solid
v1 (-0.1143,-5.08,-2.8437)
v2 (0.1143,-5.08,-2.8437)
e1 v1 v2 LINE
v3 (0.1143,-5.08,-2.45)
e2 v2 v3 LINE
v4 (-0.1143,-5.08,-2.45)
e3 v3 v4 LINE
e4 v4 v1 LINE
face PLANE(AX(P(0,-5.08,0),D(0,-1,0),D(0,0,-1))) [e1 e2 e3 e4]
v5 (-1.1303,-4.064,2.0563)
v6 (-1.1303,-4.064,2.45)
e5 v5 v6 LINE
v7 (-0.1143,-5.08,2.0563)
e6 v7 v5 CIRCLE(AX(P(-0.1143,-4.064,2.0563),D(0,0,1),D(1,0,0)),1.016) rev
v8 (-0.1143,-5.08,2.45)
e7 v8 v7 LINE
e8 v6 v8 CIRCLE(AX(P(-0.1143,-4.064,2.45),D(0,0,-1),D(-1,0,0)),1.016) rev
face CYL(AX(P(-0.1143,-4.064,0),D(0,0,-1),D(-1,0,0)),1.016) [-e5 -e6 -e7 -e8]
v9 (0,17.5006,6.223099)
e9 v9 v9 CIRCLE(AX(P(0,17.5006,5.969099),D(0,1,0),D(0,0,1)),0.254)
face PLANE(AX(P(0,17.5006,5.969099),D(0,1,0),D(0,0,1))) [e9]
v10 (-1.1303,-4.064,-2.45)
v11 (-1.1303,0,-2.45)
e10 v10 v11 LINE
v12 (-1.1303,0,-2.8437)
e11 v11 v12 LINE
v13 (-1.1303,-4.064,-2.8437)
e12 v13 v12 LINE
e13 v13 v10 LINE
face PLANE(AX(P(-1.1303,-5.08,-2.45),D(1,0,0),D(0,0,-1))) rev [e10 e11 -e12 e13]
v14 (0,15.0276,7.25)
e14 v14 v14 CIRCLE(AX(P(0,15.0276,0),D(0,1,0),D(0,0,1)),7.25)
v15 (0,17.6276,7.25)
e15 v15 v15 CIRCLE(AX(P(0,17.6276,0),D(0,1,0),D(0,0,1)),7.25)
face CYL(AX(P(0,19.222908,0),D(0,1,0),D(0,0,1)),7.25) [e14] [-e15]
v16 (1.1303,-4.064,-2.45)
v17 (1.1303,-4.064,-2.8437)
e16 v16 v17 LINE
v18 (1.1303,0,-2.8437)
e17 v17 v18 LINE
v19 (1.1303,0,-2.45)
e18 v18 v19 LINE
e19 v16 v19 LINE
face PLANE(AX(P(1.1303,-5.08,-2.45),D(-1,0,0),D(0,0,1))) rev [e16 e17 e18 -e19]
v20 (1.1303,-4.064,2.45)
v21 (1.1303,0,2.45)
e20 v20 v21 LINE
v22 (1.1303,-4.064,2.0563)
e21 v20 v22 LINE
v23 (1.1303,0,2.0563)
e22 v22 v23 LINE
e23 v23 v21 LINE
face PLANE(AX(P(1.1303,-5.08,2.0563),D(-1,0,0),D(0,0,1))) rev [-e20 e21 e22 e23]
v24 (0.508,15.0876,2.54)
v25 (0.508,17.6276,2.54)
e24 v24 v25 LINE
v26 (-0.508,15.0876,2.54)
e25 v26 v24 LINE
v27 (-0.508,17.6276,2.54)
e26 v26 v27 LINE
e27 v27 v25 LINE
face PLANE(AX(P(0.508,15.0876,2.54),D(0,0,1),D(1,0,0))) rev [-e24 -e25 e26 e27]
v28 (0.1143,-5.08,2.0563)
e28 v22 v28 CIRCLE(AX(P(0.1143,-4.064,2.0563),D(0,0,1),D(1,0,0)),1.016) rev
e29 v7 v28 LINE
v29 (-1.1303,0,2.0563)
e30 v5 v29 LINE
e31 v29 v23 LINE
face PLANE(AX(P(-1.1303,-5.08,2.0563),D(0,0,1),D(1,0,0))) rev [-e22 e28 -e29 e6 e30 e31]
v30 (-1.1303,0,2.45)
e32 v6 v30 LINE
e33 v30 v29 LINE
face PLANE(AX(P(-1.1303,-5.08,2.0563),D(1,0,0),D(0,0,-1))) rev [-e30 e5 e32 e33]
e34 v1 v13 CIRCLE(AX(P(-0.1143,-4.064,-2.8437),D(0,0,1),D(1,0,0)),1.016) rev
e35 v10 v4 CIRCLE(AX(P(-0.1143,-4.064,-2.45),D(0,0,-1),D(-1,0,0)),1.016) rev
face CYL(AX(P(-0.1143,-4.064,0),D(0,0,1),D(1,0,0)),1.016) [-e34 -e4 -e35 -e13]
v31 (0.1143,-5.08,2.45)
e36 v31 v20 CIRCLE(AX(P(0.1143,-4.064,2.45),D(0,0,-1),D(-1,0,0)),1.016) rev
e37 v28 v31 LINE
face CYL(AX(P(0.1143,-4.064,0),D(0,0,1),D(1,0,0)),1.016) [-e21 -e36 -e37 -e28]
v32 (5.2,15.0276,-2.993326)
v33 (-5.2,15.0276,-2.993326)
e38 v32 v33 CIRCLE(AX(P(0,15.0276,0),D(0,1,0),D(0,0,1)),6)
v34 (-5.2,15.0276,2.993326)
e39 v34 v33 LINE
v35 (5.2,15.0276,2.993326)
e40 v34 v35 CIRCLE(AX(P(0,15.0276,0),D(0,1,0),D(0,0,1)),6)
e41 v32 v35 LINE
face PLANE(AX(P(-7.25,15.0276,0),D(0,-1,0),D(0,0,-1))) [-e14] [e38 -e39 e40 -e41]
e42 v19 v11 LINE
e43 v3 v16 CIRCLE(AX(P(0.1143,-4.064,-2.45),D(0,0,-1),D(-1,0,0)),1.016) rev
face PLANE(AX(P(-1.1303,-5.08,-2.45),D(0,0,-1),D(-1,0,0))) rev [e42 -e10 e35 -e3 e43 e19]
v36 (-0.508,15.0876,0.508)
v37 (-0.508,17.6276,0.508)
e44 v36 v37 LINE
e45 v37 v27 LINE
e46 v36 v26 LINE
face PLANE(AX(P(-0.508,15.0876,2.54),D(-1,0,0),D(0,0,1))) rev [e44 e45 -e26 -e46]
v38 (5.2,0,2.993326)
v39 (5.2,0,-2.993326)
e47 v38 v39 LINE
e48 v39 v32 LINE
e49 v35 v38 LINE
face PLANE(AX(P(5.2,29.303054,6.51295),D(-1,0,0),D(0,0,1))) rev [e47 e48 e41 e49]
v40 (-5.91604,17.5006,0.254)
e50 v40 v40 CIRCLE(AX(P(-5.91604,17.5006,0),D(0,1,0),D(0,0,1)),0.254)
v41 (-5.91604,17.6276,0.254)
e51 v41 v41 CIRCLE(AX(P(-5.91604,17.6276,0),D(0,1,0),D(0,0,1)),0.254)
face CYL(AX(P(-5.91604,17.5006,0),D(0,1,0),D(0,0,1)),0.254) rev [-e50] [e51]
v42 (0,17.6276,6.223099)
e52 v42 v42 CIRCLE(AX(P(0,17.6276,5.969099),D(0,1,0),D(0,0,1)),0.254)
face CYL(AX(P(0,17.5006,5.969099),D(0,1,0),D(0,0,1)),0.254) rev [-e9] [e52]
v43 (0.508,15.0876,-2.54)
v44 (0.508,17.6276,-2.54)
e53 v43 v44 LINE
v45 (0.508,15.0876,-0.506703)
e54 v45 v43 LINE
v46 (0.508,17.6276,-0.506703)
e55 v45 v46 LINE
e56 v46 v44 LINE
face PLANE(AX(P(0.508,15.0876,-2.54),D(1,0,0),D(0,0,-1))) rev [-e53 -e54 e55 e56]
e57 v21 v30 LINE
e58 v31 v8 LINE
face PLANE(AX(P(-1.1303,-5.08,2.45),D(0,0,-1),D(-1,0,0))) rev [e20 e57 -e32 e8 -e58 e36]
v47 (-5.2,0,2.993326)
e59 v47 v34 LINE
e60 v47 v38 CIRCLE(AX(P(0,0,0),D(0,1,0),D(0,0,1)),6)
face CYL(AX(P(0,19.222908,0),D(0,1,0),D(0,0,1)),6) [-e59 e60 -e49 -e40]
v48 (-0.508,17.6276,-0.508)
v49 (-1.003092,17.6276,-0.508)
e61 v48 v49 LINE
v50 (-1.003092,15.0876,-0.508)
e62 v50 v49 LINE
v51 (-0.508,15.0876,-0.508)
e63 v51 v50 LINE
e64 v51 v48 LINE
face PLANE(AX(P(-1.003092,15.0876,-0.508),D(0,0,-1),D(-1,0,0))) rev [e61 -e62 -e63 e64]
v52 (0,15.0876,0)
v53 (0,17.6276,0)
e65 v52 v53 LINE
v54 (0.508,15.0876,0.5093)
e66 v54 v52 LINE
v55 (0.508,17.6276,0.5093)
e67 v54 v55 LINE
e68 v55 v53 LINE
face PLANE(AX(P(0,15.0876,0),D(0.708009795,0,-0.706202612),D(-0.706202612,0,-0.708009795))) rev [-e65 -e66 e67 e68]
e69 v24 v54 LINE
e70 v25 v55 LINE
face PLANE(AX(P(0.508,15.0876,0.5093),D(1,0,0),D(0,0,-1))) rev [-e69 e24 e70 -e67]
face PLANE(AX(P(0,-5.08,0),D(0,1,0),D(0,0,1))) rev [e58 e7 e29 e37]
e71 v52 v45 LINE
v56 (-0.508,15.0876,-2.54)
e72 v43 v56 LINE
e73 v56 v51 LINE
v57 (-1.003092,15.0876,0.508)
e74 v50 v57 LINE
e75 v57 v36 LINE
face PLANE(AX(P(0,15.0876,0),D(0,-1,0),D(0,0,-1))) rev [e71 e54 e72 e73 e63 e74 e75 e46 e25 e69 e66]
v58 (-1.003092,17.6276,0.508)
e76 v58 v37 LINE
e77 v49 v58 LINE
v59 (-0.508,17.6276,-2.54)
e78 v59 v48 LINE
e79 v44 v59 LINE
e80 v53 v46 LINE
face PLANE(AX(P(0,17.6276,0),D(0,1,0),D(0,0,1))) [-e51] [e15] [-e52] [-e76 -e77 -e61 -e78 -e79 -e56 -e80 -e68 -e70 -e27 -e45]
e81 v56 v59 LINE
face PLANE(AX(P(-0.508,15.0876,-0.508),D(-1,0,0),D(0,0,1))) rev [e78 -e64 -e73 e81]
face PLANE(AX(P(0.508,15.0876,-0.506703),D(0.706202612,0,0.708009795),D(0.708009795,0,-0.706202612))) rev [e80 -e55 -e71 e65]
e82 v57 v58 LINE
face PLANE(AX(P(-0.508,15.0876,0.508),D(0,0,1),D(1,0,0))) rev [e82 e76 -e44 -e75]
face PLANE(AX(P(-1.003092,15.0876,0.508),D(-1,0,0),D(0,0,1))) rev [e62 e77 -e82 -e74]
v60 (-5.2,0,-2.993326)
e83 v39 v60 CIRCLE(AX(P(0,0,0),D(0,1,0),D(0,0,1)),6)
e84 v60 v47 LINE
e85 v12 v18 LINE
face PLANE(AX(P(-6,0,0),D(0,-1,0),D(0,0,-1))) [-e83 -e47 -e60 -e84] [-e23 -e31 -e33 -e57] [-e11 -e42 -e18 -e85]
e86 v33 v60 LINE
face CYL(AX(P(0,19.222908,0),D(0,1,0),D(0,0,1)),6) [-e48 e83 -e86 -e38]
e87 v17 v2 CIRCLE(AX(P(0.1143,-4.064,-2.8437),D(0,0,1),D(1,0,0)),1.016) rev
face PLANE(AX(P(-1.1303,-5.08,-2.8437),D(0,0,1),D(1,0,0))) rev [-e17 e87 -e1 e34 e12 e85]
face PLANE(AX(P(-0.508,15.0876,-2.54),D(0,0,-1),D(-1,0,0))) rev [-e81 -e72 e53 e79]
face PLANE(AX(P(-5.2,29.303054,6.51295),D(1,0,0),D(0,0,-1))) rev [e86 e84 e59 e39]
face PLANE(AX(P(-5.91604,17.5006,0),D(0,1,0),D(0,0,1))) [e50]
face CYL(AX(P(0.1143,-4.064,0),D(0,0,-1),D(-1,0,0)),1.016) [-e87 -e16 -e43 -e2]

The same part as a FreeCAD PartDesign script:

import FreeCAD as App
import Part
import Sketcher
Q = App.Units.Quantity


def edges_at(feature, points):
    """Names of the edges that pass closest to the given points."""
    edges = feature.Shape.Edges
    near = lambda p: min(range(len(edges)), key=lambda i: edges[i].distToShape(Part.Vertex(*p))[0])
    return sorted({f"Edge{near(p) + 1}" for p in points})

doc = App.newDocument("Part")
body = doc.addObject("PartDesign::Body", "Body")

# Sketch on XY plane
sketch1 = body.newObject("Sketcher::SketchObject", "Sketch")
sketch1.AttachmentSupport = (doc.getObject("XY_Plane"), [""])
sketch1.MapMode = "FlatFace"
sketch1.addGeometry(Part.LineSegment(App.Vector(0, 17.6, 0), App.Vector(-7.2, 17.6, 0)), False)
sketch1.addGeometry(Part.LineSegment(App.Vector(-7.2, 17.6, 0), App.Vector(-7.2, 15, 0)), False)
sketch1.addGeometry(Part.LineSegment(App.Vector(-7.2, 15, 0), App.Vector(-6, 15, 0)), False)
sketch1.addGeometry(Part.LineSegment(App.Vector(-6, 15, 0), App.Vector(-6, 0, 0)), False)
sketch1.addGeometry(Part.LineSegment(App.Vector(-6, 0, 0), App.Vector(0, 0, 0)), False)
sketch1.addGeometry(Part.LineSegment(App.Vector(0, 0, 0), App.Vector(0, 17.6, 0)), False)
sketch1.addConstraint(Sketcher.Constraint("Coincident", 0, 2, 1, 1))
sketch1.addConstraint(Sketcher.Constraint("Coincident", 1, 2, 2, 1))
sketch1.addConstraint(Sketcher.Constraint("Coincident", 2, 2, 3, 1))
sketch1.addConstraint(Sketcher.Constraint("Coincident", 3, 2, 4, 1))
sketch1.addConstraint(Sketcher.Constraint("Coincident", 4, 2, 5, 1))
sketch1.addConstraint(Sketcher.Constraint("Coincident", 5, 2, 0, 1))
sketch1.addConstraint(Sketcher.Constraint("Horizontal", 0))
sketch1.addConstraint(Sketcher.Constraint("Vertical", 1))
sketch1.addConstraint(Sketcher.Constraint("Horizontal", 2))
sketch1.addConstraint(Sketcher.Constraint("Vertical", 3))
sketch1.addConstraint(Sketcher.Constraint("Horizontal", 4))
sketch1.addConstraint(Sketcher.Constraint("Vertical", 5))
sketch1.addConstraint(Sketcher.Constraint("Coincident", 4, 2, -1, 1))
sketch1.addConstraint(Sketcher.Constraint("DistanceY", 5, 1, 5, 2, Q("0.694 in")))
sketch1.addConstraint(Sketcher.Constraint("DistanceX", 0, 2, 0, 1, 7.25))
sketch1.addConstraint(Sketcher.Constraint("DistanceX", 2, 1, 2, 2, 1.25))
sketch1.addConstraint(Sketcher.Constraint("DistanceY", 1, 2, 1, 1, 2.6))
revolution = body.newObject("PartDesign::Revolution", "Revolution")
revolution.Profile = sketch1
revolution.ReferenceAxis = (sketch1, ["V_Axis"])
revolution.Angle = 360

# Sketch on XZ plane
sketch2 = body.newObject("Sketcher::SketchObject", "Sketch001")
sketch2.AttachmentSupport = (doc.getObject("XZ_Plane"), [""])
sketch2.MapMode = "FlatFace"
sketch2.addGeometry(Part.LineSegment(App.Vector(-8.5, 6.5, 0), App.Vector(-8.5, -7.4, 0)), False)
sketch2.addGeometry(Part.LineSegment(App.Vector(-8.5, -7.4, 0), App.Vector(-5.2, -7.4, 0)), False)
sketch2.addGeometry(Part.LineSegment(App.Vector(-5.2, -7.4, 0), App.Vector(-5.2, 6.5, 0)), False)
sketch2.addGeometry(Part.LineSegment(App.Vector(-5.2, 6.5, 0), App.Vector(-8.5, 6.5, 0)), False)
sketch2.addGeometry(Part.LineSegment(App.Vector(5.2, 6.5, 0), App.Vector(5.2, -7.4, 0)), False)
sketch2.addGeometry(Part.LineSegment(App.Vector(5.2, -7.4, 0), App.Vector(8.5, -7.4, 0)), False)
sketch2.addGeometry(Part.LineSegment(App.Vector(8.5, -7.4, 0), App.Vector(8.5, 6.5, 0)), False)
sketch2.addGeometry(Part.LineSegment(App.Vector(8.5, 6.5, 0), App.Vector(5.2, 6.5, 0)), False)
sketch2.addConstraint(Sketcher.Constraint("Coincident", 0, 2, 1, 1))
sketch2.addConstraint(Sketcher.Constraint("Coincident", 1, 2, 2, 1))
sketch2.addConstraint(Sketcher.Constraint("Coincident", 2, 2, 3, 1))
sketch2.addConstraint(Sketcher.Constraint("Coincident", 3, 2, 0, 1))
sketch2.addConstraint(Sketcher.Constraint("Coincident", 4, 2, 5, 1))
sketch2.addConstraint(Sketcher.Constraint("Coincident", 5, 2, 6, 1))
sketch2.addConstraint(Sketcher.Constraint("Coincident", 6, 2, 7, 1))
sketch2.addConstraint(Sketcher.Constraint("Coincident", 7, 2, 4, 1))
sketch2.addConstraint(Sketcher.Constraint("Vertical", 0))
sketch2.addConstraint(Sketcher.Constraint("Horizontal", 1))
sketch2.addConstraint(Sketcher.Constraint("Vertical", 2))
sketch2.addConstraint(Sketcher.Constraint("Horizontal", 3))
sketch2.addConstraint(Sketcher.Constraint("Vertical", 4))
sketch2.addConstraint(Sketcher.Constraint("Horizontal", 5))
sketch2.addConstraint(Sketcher.Constraint("Vertical", 6))
sketch2.addConstraint(Sketcher.Constraint("Horizontal", 7))
sketch2.addConstraint(Sketcher.Constraint("Symmetric", 1, 2, 4, 2, -2))
sketch2.addConstraint(Sketcher.Constraint("Symmetric", 3, 2, 6, 2, -2))
sketch2.addConstraint(Sketcher.Constraint("DistanceX", 1, 1, 1, 2, 3.302901))
sketch2.addConstraint(Sketcher.Constraint("DistanceX", 0, 2, -1, 1, 8.502901))
sketch2.addConstraint(Sketcher.Constraint("DistanceY", 0, 2, 0, 1, 13.888104))
sketch2.addConstraint(Sketcher.Constraint("DistanceY", -1, 1, 2, 2, 6.51295))
pocket1 = body.newObject("PartDesign::Pocket", "Pocket")
pocket1.Profile = sketch2
pocket1.Length = 15.0276

# Sketch on XZ plane
sketch3 = body.newObject("Sketcher::SketchObject", "Sketch002")
sketch3.AttachmentSupport = (doc.getObject("XZ_Plane"), [""])
sketch3.MapMode = "FlatFace"
sketch3.addGeometry(Part.LineSegment(App.Vector(-1.13, 2.45, 0), App.Vector(-1.13, 2.06, 0)), False)
sketch3.addGeometry(Part.LineSegment(App.Vector(-1.13, 2.06, 0), App.Vector(1.13, 2.06, 0)), False)
sketch3.addGeometry(Part.LineSegment(App.Vector(1.13, 2.06, 0), App.Vector(1.13, 2.45, 0)), False)
sketch3.addGeometry(Part.LineSegment(App.Vector(1.13, 2.45, 0), App.Vector(-1.13, 2.45, 0)), False)
sketch3.addGeometry(Part.LineSegment(App.Vector(-1.13, -2.45, 0), App.Vector(-1.13, -2.84, 0)), False)
sketch3.addGeometry(Part.LineSegment(App.Vector(-1.13, -2.84, 0), App.Vector(1.13, -2.84, 0)), False)
sketch3.addGeometry(Part.LineSegment(App.Vector(1.13, -2.84, 0), App.Vector(1.13, -2.45, 0)), False)
sketch3.addGeometry(Part.LineSegment(App.Vector(1.13, -2.45, 0), App.Vector(-1.13, -2.45, 0)), False)
sketch3.addConstraint(Sketcher.Constraint("Coincident", 0, 2, 1, 1))
sketch3.addConstraint(Sketcher.Constraint("Coincident", 1, 2, 2, 1))
sketch3.addConstraint(Sketcher.Constraint("Coincident", 2, 2, 3, 1))
sketch3.addConstraint(Sketcher.Constraint("Coincident", 3, 2, 0, 1))
sketch3.addConstraint(Sketcher.Constraint("Coincident", 4, 2, 5, 1))
sketch3.addConstraint(Sketcher.Constraint("Coincident", 5, 2, 6, 1))
sketch3.addConstraint(Sketcher.Constraint("Coincident", 6, 2, 7, 1))
sketch3.addConstraint(Sketcher.Constraint("Coincident", 7, 2, 4, 1))
sketch3.addConstraint(Sketcher.Constraint("Vertical", 0))
sketch3.addConstraint(Sketcher.Constraint("Horizontal", 1))
sketch3.addConstraint(Sketcher.Constraint("Vertical", 2))
sketch3.addConstraint(Sketcher.Constraint("Horizontal", 3))
sketch3.addConstraint(Sketcher.Constraint("Vertical", 4))
sketch3.addConstraint(Sketcher.Constraint("Horizontal", 5))
sketch3.addConstraint(Sketcher.Constraint("Vertical", 6))
sketch3.addConstraint(Sketcher.Constraint("Horizontal", 7))
sketch3.addConstraint(Sketcher.Constraint("Symmetric", 3, 2, 6, 2, -1, 1))
sketch3.addConstraint(Sketcher.Constraint("Vertical", 3, 2, 4, 2))
sketch3.addConstraint(Sketcher.Constraint("Vertical", 2, 2, 5, 2))
sketch3.addConstraint(Sketcher.Constraint("Equal", 2, 4))
sketch3.addConstraint(Sketcher.Constraint("DistanceX", 1, 1, 1, 2, Q("0.089 in")))
sketch3.addConstraint(Sketcher.Constraint("DistanceY", 0, 2, 0, 1, Q("0.0155 in")))
sketch3.addConstraint(Sketcher.Constraint("DistanceY", -1, 1, 0, 2, 2.0563))
pad1 = body.newObject("PartDesign::Pad", "Pad")
pad1.Profile = sketch3
pad1.Length = Q("0.2 in")
doc.recompute()

fillet = body.newObject("PartDesign::Fillet", "Fillet")
fillet.Base = (pad1, edges_at(pad1, [
    (1.13, -5.08, 2.253),
    (-1.13, -5.08, 2.253),
    (1.13, -5.08, -2.647),
    (-1.13, -5.08, -2.647),
]))
fillet.Radius = Q("0.04 in")

# Sketch on XZ plane
sketch4 = body.newObject("Sketcher::SketchObject", "Sketch003")
sketch4.AttachmentSupport = (doc.getObject("XZ_Plane"), [""])
sketch4.MapMode = "FlatFace"
sketch4.AttachmentOffset = App.Placement(App.Vector(0, 0, -0.694 * 25.4), App.Rotation())
sketch4.addGeometry(Part.LineSegment(App.Vector(0.51, -0.51, 0), App.Vector(0.51, -2.54, 0)), False)
sketch4.addGeometry(Part.LineSegment(App.Vector(0.51, -2.54, 0), App.Vector(-0.51, -2.54, 0)), False)
sketch4.addGeometry(Part.LineSegment(App.Vector(-0.51, -2.54, 0), App.Vector(-0.51, -0.51, 0)), False)
sketch4.addGeometry(Part.LineSegment(App.Vector(-0.51, -0.51, 0), App.Vector(-1, -0.51, 0)), False)
sketch4.addGeometry(Part.LineSegment(App.Vector(-1, -0.51, 0), App.Vector(-1, 0.51, 0)), False)
sketch4.addGeometry(Part.LineSegment(App.Vector(-1, 0.51, 0), App.Vector(-0.51, 0.51, 0)), False)
sketch4.addGeometry(Part.LineSegment(App.Vector(-0.51, 0.51, 0), App.Vector(-0.51, 2.54, 0)), False)
sketch4.addGeometry(Part.LineSegment(App.Vector(-0.51, 2.54, 0), App.Vector(0.51, 2.54, 0)), False)
sketch4.addGeometry(Part.LineSegment(App.Vector(0.51, 2.54, 0), App.Vector(0.51, 0.51, 0)), False)
sketch4.addGeometry(Part.LineSegment(App.Vector(0.51, 0.51, 0), App.Vector(0, 0, 0)), False)
sketch4.addGeometry(Part.LineSegment(App.Vector(0, 0, 0), App.Vector(0.51, -0.51, 0)), False)
sketch4.addConstraint(Sketcher.Constraint("Coincident", 0, 2, 1, 1))
sketch4.addConstraint(Sketcher.Constraint("Coincident", 1, 2, 2, 1))
sketch4.addConstraint(Sketcher.Constraint("Coincident", 2, 2, 3, 1))
sketch4.addConstraint(Sketcher.Constraint("Coincident", 3, 2, 4, 1))
sketch4.addConstraint(Sketcher.Constraint("Coincident", 4, 2, 5, 1))
sketch4.addConstraint(Sketcher.Constraint("Coincident", 5, 2, 6, 1))
sketch4.addConstraint(Sketcher.Constraint("Coincident", 6, 2, 7, 1))
sketch4.addConstraint(Sketcher.Constraint("Coincident", 7, 2, 8, 1))
sketch4.addConstraint(Sketcher.Constraint("Coincident", 8, 2, 9, 1))
sketch4.addConstraint(Sketcher.Constraint("Coincident", 9, 2, 10, 1))
sketch4.addConstraint(Sketcher.Constraint("Coincident", 10, 2, 0, 1))
sketch4.addConstraint(Sketcher.Constraint("Vertical", 0))
sketch4.addConstraint(Sketcher.Constraint("Horizontal", 1))
sketch4.addConstraint(Sketcher.Constraint("Vertical", 2))
sketch4.addConstraint(Sketcher.Constraint("Horizontal", 3))
sketch4.addConstraint(Sketcher.Constraint("Vertical", 4))
sketch4.addConstraint(Sketcher.Constraint("Horizontal", 5))
sketch4.addConstraint(Sketcher.Constraint("Vertical", 6))
sketch4.addConstraint(Sketcher.Constraint("Horizontal", 7))
sketch4.addConstraint(Sketcher.Constraint("Vertical", 8))
sketch4.addConstraint(Sketcher.Constraint("Coincident", 9, 2, -1, 1))
sketch4.addConstraint(Sketcher.Constraint("Symmetric", 0, 2, 6, 2, -1, 1))
sketch4.addConstraint(Sketcher.Constraint("Symmetric", 2, 2, 5, 2, -1))
sketch4.addConstraint(Sketcher.Constraint("Perpendicular", 9, 10))
sketch4.addConstraint(Sketcher.Constraint("Vertical", 0, 2, 7, 2))
sketch4.addConstraint(Sketcher.Constraint("Equal", 7, 4))
sketch4.addConstraint(Sketcher.Constraint("DistanceX", 1, 2, 1, 1, Q("0.04 in")))
sketch4.addConstraint(Sketcher.Constraint("DistanceY", 2, 1, 2, 2, Q("0.08 in")))
sketch4.addConstraint(Sketcher.Constraint("DistanceY", 8, 2, 8, 1, 2.0307))
sketch4.addConstraint(Sketcher.Constraint("DistanceX", 3, 2, 3, 1, 0.495092))
pocket2 = body.newObject("PartDesign::Pocket", "Pocket001")
pocket2.Profile = sketch4
pocket2.Length = Q("0.1 in")
pocket2.Reversed = True

# Sketch on XZ plane
sketch5 = body.newObject("Sketcher::SketchObject", "Sketch004")
sketch5.AttachmentSupport = (doc.getObject("XZ_Plane"), [""])
sketch5.MapMode = "FlatFace"
sketch5.AttachmentOffset = App.Placement(App.Vector(0, 0, -0.694 * 25.4), App.Rotation())
sketch5.addGeometry(Part.Circle(App.Vector(-5.92, 0, 0), App.Vector(0, 0, 1), 0.25), False)
sketch5.addGeometry(Part.Circle(App.Vector(0, 5.97, 0), App.Vector(0, 0, 1), 0.25), False)
sketch5.addConstraint(Sketcher.Constraint("Equal", 0, 1))
sketch5.addConstraint(Sketcher.Constraint("PointOnObject", 0, 3, -1))
sketch5.addConstraint(Sketcher.Constraint("PointOnObject", 1, 3, -2))
sketch5.addConstraint(Sketcher.Constraint("Diameter", 0, Q("0.02 in")))
sketch5.addConstraint(Sketcher.Constraint("DistanceY", -1, 1, 1, 3, 5.969099))
sketch5.addConstraint(Sketcher.Constraint("DistanceX", 0, 3, -1, 1, 5.91604))
pocket3 = body.newObject("PartDesign::Pocket", "Pocket002")
pocket3.Profile = sketch5
pocket3.Length = Q("0.005 in")
pocket3.Reversed = True

doc.recompute()
